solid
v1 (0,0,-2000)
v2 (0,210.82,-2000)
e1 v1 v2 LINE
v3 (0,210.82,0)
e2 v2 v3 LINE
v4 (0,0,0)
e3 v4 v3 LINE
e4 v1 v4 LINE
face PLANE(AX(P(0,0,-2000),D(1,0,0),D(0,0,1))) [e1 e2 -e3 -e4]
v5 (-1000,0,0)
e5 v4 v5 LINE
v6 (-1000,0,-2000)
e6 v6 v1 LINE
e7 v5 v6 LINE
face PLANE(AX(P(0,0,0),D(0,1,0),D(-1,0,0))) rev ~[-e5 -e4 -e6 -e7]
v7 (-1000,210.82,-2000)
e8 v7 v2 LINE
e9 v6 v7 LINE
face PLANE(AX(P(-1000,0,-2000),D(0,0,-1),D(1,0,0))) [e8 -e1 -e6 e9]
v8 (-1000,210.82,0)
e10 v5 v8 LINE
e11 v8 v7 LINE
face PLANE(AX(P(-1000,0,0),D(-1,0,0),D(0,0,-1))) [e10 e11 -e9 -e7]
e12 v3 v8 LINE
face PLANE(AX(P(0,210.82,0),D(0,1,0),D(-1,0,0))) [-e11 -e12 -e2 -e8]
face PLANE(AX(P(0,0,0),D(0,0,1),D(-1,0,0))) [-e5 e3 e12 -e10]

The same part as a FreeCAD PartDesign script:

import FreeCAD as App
import Part
import Sketcher
Q = App.Units.Quantity

doc = App.newDocument("Part")
body = doc.addObject("PartDesign::Body", "Body")

sketch1 = body.newObject("Sketcher::SketchObject", "Sketch")
sketch1.AttachmentSupport = (doc.getObject("XZ_Plane"), [""])
sketch1.MapMode = "FlatFace"
sketch1.addGeometry([
    Part.LineSegment(App.Vector(-1000, 0, 0), App.Vector(0, 0, 0)),
    Part.LineSegment(App.Vector(0, 0, 0), App.Vector(0, -2000, 0)),
    Part.LineSegment(App.Vector(0, -2000, 0), App.Vector(-1000, -2000, 0)),
    Part.LineSegment(App.Vector(-1000, -2000, 0), App.Vector(-1000, 0, 0)),
], False)
sketch1.addConstraint([
    Sketcher.Constraint("Coincident", 0, 2, 1, 1),
    Sketcher.Constraint("Coincident", 1, 2, 2, 1),
    Sketcher.Constraint("Coincident", 2, 2, 3, 1),
    Sketcher.Constraint("Coincident", 3, 2, 0, 1),
    Sketcher.Constraint("Horizontal", 0),
    Sketcher.Constraint("Vertical", 1),
    Sketcher.Constraint("Horizontal", 2),
    Sketcher.Constraint("Vertical", 3),
    Sketcher.Constraint("Coincident", 0, 2, -1, 1),
    Sketcher.Constraint("DistanceX", 0, 1, 0, 2, Q("1000 mm")),
    Sketcher.Constraint("DistanceY", 1, 2, 1, 1, Q("2000 mm")),
])
pad1 = body.newObject("PartDesign::Pad", "Pad")
pad1.Profile = sketch1
pad1.Length = 210.82
pad1.Reversed = True

doc.recompute()
